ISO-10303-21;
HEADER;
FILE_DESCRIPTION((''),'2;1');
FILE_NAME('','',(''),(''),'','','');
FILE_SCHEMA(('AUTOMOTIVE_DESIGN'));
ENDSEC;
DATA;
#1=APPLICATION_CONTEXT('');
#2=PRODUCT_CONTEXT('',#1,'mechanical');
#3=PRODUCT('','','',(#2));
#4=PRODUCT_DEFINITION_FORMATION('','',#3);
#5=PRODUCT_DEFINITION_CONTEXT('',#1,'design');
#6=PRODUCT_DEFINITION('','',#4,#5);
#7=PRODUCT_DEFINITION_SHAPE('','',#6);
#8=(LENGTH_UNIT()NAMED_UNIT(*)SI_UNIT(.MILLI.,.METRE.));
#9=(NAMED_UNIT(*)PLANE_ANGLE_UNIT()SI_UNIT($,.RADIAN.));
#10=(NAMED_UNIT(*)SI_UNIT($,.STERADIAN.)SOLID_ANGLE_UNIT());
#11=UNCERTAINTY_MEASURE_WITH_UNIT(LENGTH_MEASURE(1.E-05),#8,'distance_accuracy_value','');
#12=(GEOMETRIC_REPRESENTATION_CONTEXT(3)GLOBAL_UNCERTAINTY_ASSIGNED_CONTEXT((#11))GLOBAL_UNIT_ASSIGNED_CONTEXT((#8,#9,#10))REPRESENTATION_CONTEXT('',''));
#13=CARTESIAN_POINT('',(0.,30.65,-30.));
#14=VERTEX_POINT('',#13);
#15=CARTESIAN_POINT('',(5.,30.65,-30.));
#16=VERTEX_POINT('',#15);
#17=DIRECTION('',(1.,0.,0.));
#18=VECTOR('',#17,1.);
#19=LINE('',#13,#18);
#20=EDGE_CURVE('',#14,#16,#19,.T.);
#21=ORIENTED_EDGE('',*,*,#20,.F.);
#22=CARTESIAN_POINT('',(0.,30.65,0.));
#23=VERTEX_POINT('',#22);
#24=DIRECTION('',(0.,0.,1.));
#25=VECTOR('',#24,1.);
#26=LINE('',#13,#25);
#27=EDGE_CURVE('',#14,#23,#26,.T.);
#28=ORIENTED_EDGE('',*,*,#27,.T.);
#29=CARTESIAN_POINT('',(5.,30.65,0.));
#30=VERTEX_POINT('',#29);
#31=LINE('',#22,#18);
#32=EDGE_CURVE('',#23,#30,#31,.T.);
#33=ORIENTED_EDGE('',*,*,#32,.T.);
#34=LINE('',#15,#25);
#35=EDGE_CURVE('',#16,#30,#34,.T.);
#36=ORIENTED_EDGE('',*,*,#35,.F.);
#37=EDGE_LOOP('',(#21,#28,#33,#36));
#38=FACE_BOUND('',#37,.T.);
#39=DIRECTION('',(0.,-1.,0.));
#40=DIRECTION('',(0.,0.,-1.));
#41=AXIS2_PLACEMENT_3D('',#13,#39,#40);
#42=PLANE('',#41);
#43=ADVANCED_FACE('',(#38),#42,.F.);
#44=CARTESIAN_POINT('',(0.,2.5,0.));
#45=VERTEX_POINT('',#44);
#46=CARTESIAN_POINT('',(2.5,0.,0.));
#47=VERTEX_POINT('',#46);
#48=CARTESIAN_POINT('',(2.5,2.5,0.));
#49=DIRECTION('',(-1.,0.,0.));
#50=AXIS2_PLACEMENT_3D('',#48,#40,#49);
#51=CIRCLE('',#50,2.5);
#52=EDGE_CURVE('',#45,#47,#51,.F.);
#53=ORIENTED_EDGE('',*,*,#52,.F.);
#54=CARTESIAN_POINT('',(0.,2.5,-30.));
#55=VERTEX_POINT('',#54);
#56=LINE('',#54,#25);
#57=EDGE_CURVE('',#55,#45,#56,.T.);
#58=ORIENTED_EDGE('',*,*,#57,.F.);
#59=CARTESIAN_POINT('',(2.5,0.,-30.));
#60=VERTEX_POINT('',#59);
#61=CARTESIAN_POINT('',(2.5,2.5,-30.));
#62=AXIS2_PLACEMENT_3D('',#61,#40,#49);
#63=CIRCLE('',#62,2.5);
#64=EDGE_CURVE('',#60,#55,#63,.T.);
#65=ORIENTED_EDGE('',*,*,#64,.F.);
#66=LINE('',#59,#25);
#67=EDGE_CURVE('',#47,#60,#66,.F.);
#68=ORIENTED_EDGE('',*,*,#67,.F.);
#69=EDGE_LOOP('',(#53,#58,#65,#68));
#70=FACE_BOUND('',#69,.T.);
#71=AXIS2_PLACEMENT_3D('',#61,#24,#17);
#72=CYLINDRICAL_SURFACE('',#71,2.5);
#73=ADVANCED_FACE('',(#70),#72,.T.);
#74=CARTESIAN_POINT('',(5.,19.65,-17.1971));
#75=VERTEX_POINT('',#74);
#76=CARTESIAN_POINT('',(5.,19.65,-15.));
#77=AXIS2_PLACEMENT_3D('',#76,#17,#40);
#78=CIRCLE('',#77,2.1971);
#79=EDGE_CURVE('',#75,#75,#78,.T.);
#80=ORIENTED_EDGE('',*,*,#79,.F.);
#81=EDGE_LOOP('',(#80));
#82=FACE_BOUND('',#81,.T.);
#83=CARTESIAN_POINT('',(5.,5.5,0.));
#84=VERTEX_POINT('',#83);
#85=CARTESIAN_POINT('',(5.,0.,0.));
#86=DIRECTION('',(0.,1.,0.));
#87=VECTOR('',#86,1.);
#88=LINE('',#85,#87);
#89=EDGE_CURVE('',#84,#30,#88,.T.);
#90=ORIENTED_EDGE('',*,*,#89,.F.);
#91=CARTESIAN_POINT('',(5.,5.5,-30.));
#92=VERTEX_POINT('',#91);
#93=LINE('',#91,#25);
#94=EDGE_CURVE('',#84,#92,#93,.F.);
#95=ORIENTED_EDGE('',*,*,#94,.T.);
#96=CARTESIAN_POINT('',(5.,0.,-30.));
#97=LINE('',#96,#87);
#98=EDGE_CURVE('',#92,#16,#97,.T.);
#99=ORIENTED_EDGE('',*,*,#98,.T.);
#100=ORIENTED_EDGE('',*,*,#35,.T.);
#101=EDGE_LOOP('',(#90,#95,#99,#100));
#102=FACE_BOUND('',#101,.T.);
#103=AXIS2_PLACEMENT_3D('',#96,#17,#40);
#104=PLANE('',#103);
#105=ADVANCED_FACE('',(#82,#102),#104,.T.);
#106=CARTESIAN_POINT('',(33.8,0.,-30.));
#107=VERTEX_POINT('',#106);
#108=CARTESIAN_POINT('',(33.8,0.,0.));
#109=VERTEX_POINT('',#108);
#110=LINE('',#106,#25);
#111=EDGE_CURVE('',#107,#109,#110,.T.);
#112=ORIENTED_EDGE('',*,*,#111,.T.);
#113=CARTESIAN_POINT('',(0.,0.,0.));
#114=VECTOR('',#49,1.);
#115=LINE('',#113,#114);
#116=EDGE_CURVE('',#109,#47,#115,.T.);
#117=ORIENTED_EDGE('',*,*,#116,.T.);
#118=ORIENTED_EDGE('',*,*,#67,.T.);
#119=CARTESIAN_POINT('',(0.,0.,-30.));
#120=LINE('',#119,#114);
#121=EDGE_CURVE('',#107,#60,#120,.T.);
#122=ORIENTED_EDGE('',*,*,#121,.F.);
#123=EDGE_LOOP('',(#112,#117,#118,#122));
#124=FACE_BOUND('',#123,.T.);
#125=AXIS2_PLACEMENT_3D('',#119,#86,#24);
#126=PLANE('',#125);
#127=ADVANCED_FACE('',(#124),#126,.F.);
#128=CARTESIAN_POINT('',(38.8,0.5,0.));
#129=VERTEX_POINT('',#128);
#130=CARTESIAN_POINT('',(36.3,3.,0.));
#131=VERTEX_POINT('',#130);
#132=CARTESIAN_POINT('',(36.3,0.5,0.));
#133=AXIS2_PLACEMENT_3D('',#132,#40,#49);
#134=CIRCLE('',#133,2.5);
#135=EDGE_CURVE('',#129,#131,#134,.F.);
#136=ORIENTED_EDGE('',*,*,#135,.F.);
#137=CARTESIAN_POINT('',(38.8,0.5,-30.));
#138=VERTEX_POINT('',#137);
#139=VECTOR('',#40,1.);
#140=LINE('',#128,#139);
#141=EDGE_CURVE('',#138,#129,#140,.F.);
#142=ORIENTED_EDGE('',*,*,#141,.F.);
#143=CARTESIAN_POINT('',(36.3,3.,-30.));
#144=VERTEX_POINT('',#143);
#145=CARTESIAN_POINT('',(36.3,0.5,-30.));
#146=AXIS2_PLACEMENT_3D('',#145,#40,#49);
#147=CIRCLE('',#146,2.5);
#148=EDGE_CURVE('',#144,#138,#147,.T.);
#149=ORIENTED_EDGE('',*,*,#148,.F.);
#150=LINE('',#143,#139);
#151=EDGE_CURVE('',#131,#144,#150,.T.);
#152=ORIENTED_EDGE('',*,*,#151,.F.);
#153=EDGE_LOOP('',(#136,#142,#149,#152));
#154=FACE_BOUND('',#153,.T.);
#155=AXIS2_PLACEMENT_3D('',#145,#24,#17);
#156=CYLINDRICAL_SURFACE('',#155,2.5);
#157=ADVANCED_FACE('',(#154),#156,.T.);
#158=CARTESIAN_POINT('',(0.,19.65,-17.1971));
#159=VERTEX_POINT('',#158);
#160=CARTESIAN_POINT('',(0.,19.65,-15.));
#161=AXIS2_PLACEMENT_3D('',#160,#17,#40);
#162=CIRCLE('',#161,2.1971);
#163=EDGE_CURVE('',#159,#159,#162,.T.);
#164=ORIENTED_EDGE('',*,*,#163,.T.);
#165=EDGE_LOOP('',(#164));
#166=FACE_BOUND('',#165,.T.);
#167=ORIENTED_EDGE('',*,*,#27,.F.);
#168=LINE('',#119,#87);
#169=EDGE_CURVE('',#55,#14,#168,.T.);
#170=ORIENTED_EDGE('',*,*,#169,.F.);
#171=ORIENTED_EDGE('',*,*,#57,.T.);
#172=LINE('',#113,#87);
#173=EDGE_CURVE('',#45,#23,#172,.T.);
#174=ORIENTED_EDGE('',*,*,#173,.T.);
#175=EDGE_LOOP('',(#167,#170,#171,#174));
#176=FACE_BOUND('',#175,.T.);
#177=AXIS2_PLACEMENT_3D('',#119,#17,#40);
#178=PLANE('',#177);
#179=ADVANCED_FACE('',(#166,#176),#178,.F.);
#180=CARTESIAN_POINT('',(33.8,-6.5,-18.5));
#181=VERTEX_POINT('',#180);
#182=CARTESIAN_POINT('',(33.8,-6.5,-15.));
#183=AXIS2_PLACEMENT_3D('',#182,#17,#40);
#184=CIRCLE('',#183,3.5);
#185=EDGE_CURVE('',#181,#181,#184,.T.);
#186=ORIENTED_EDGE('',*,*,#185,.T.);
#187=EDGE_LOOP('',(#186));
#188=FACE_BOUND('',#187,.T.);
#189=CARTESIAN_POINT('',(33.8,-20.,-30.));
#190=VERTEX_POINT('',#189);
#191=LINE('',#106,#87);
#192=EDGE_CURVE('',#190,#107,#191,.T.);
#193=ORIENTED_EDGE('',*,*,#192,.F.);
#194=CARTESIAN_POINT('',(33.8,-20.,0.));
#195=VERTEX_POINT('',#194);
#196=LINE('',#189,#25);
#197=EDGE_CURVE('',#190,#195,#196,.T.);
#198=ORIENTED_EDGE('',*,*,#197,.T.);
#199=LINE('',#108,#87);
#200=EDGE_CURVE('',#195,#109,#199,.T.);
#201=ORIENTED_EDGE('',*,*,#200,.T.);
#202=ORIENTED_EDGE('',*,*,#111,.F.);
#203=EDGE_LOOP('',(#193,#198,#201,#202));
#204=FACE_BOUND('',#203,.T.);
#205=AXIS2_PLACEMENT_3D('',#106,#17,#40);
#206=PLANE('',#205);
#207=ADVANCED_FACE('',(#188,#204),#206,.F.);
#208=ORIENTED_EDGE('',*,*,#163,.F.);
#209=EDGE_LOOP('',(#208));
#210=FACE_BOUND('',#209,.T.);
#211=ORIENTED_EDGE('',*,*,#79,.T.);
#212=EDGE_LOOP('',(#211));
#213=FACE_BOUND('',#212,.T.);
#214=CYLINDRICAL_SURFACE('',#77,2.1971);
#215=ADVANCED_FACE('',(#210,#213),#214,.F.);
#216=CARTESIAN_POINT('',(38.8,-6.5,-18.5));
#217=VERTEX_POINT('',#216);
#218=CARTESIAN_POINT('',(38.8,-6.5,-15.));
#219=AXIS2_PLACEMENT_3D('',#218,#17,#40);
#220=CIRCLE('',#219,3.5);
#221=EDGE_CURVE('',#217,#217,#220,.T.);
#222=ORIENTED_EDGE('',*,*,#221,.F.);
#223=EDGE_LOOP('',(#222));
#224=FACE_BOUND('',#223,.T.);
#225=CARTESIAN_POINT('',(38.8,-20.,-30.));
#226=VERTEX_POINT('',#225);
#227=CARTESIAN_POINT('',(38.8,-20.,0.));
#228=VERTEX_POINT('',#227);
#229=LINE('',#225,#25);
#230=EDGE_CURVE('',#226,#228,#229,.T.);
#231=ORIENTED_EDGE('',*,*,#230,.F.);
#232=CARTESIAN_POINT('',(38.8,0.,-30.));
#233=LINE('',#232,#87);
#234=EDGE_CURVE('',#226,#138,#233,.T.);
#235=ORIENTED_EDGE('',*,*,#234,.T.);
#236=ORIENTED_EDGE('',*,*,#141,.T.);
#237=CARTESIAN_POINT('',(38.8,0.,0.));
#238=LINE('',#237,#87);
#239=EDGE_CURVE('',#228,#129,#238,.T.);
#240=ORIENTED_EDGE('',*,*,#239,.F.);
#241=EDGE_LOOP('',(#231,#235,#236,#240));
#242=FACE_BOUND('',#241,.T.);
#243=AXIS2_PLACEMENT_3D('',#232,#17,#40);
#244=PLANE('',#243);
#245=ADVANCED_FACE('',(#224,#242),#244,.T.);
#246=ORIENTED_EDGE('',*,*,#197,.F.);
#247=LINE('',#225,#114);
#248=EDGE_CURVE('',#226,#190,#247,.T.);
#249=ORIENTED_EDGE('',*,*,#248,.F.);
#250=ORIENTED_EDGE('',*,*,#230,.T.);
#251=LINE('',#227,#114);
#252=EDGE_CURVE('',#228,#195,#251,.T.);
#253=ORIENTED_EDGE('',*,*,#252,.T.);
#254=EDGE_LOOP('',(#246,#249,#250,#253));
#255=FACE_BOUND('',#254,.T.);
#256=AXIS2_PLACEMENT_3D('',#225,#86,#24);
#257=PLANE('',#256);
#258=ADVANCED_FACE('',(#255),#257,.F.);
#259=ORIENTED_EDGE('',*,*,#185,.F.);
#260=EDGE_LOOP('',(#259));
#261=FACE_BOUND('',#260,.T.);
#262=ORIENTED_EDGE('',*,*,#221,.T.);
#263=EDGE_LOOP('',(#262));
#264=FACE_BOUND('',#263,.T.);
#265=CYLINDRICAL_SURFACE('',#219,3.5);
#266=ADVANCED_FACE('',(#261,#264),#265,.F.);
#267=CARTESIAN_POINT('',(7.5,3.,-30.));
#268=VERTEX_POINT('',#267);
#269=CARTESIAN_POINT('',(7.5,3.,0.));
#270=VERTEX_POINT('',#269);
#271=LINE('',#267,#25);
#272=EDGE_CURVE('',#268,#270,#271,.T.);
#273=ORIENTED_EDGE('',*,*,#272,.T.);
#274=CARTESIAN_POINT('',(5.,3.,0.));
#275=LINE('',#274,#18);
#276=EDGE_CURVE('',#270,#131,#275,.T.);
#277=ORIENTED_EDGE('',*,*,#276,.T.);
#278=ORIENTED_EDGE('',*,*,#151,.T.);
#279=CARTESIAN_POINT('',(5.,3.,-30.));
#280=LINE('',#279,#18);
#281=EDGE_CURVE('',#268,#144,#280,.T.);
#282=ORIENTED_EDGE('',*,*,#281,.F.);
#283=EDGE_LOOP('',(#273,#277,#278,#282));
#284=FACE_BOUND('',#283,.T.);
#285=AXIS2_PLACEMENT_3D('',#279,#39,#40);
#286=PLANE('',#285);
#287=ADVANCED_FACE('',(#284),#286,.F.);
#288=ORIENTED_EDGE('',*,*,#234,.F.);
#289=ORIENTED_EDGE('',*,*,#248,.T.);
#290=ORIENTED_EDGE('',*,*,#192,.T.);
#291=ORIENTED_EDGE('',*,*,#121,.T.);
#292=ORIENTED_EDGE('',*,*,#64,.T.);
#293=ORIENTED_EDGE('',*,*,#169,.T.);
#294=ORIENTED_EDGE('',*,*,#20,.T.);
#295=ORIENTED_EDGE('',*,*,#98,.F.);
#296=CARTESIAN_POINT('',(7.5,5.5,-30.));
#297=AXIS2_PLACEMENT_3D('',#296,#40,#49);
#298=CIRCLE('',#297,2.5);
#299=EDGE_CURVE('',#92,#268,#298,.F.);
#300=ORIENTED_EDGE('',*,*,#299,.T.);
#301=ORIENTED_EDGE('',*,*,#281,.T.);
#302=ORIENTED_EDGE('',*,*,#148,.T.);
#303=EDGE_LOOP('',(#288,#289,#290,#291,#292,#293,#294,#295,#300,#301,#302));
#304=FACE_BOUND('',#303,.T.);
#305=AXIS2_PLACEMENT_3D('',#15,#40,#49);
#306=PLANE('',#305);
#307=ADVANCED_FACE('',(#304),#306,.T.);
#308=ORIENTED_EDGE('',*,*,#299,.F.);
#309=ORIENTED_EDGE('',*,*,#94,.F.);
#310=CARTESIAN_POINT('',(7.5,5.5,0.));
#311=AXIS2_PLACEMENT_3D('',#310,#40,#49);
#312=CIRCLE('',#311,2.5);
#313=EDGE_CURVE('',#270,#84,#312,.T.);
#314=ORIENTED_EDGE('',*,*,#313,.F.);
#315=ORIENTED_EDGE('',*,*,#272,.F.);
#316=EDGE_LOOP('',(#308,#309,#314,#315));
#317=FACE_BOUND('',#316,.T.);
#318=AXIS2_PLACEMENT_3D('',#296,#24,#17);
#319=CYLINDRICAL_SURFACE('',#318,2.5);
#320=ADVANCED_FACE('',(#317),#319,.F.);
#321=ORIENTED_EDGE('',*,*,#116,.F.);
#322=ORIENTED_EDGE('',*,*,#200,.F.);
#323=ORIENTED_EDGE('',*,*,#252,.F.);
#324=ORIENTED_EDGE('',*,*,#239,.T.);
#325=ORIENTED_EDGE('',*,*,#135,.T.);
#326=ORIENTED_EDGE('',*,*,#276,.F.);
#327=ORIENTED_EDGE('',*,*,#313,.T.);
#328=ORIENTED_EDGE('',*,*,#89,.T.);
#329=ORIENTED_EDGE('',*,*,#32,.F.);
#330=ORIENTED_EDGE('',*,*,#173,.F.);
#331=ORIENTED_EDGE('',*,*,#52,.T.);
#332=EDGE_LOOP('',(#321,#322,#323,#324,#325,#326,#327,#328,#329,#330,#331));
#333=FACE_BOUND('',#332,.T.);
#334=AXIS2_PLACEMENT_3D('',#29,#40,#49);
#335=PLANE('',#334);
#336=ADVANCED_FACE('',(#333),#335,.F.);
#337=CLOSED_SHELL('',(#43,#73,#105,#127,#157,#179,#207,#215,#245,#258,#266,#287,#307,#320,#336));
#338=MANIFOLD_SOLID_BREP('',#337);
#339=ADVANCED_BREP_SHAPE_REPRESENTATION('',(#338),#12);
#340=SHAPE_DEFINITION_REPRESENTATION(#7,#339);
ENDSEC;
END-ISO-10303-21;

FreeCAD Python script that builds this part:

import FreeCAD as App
import Part
import Sketcher


def edges_at(feature, points):
    """Names of the edges that pass closest to the given points."""
    edges = feature.Shape.Edges
    near = lambda p: min(range(len(edges)), key=lambda i: edges[i].distToShape(Part.Vertex(*p))[0])
    return sorted({f"Edge{near(p) + 1}" for p in points})


def add_polygon(sketch, points):
    """Adds a closed chain of lines whose ends are joined by coincident constraints."""
    first, n = sketch.GeometryCount, len(points)
    for a, b in zip(points, points[1:] + points[:1]):
        sketch.addGeometry(Part.LineSegment(App.Vector(*a, 0), App.Vector(*b, 0)), False)
    for i in range(n):
        sketch.addConstraint(Sketcher.Constraint("Coincident", first + i, 2, first + (i + 1) % n, 1))

doc = App.newDocument("Part")
body = doc.addObject("PartDesign::Body", "Body")

# Sketch on XY plane
sketch1 = body.newObject("Sketcher::SketchObject", "Sketch")
sketch1.AttachmentSupport = (doc.getObject("XY_Plane"), [""])
sketch1.MapMode = "FlatFace"
add_polygon(sketch1, [(0, 31), (0, 0), (34, 0), (34, -20), (39, -20), (39, 5), (5, 5), (5, 31)])  # lines 0-7
sketch1.addConstraint([
    Sketcher.Constraint("Vertical", 0),
    Sketcher.Constraint("Horizontal", 1),
    Sketcher.Constraint("Vertical", 2),
    Sketcher.Constraint("Horizontal", 3),
    Sketcher.Constraint("Vertical", 4),
    Sketcher.Constraint("Horizontal", 5),
    Sketcher.Constraint("Vertical", 6),
    Sketcher.Constraint("Horizontal", 7),
    Sketcher.Constraint("Coincident", 0, 2, -1, 1),
    Sketcher.Constraint("Equal", 1, 5),
    Sketcher.Constraint("DistanceX", 3, 1, 3, 2, 5.0),
    Sketcher.Constraint("DistanceY", 2, 2, 2, 1, 20.0),
    Sketcher.Constraint("DistanceY", 4, 1, 4, 2, 25.0),
    Sketcher.Constraint("DistanceX", 1, 1, 1, 2, 33.8),
    Sketcher.Constraint("DistanceY", 0, 2, 0, 1, 30.65),
])
pad1 = body.newObject("PartDesign::Pad", "Pad")
pad1.Profile = sketch1
pad1.Length = 30
pad1.Reversed = True

# Sketch on YZ plane
sketch2 = body.newObject("Sketcher::SketchObject", "Sketch001")
sketch2.AttachmentSupport = (doc.getObject("YZ_Plane"), [""])
sketch2.MapMode = "FlatFace"
sketch2.AttachmentOffset = App.Placement(App.Vector(0, 0, 38.8), App.Rotation())
sketch2.addGeometry(Part.Circle(App.Vector(-6.5, -15, 0), App.Vector(0, 0, 1), 3.5), False)
sketch2.addConstraint([
    Sketcher.Constraint("Diameter", 0, 7.0),
    Sketcher.Constraint("DistanceY", 0, 3, -1, 1, 15.0),
    Sketcher.Constraint("DistanceX", 0, 3, -1, 1, 6.5),
])
doc.recompute()
hole = body.newObject("PartDesign::Hole", "Hole")
hole.Profile = sketch2
hole.ThreadType = "None"
hole.Diameter = 7
hole.DepthType = "ThroughAll"

# Sketch on YZ plane
sketch3 = body.newObject("Sketcher::SketchObject", "Sketch002")
sketch3.AttachmentSupport = (doc.getObject("YZ_Plane"), [""])
sketch3.MapMode = "FlatFace"
sketch3.AttachmentOffset = App.Placement(App.Vector(0, 0, 5), App.Rotation())
sketch3.addGeometry(Part.Circle(App.Vector(19.6, -15, 0), App.Vector(0, 0, 1), 2.2), False)
sketch3.addConstraint([
    Sketcher.Constraint("DistanceY", 0, 3, -1, 1, 15.0),
    Sketcher.Constraint("Diameter", 0, 4.3942),
    Sketcher.Constraint("DistanceX", -1, 1, 0, 3, 19.65),
])
doc.recompute()
hole2 = body.newObject("PartDesign::Hole", "Hole001")
hole2.Profile = sketch3
hole2.ThreadType = "None"
hole2.Diameter = 4.3942
hole2.DepthType = "ThroughAll"

# Sketch on XY plane
sketch4 = body.newObject("Sketcher::SketchObject", "Sketch003")
sketch4.AttachmentSupport = (doc.getObject("XY_Plane"), [""])
sketch4.MapMode = "FlatFace"
add_polygon(sketch4, [(5, 35), (5, 3), (49, 3), (49, 35)])  # lines 0-3
sketch4.addConstraint([
    Sketcher.Constraint("Vertical", 0),
    Sketcher.Constraint("Horizontal", 1),
    Sketcher.Constraint("Vertical", 2),
    Sketcher.Constraint("Horizontal", 3),
    Sketcher.Constraint("DistanceX", 1, 1, 1, 2, 43.8),
    Sketcher.Constraint("DistanceX", -1, 1, 0, 2, 5.0),
    Sketcher.Constraint("DistanceY", -1, 1, 0, 2, 3.0),
    Sketcher.Constraint("DistanceY", 0, 2, 0, 1, 32.238868),
])
pocket1 = body.newObject("PartDesign::Pocket", "Pocket")
pocket1.Profile = sketch4
pocket1.Type = "ThroughAll"
doc.recompute()

fillet = body.newObject("PartDesign::Fillet", "Fillet")
fillet.Base = (pocket1, edges_at(pocket1, [(0, 0, -15), (38.8, 3, -15), (5, 3, -15)]))
fillet.Radius = 2.5

doc.recompute()
